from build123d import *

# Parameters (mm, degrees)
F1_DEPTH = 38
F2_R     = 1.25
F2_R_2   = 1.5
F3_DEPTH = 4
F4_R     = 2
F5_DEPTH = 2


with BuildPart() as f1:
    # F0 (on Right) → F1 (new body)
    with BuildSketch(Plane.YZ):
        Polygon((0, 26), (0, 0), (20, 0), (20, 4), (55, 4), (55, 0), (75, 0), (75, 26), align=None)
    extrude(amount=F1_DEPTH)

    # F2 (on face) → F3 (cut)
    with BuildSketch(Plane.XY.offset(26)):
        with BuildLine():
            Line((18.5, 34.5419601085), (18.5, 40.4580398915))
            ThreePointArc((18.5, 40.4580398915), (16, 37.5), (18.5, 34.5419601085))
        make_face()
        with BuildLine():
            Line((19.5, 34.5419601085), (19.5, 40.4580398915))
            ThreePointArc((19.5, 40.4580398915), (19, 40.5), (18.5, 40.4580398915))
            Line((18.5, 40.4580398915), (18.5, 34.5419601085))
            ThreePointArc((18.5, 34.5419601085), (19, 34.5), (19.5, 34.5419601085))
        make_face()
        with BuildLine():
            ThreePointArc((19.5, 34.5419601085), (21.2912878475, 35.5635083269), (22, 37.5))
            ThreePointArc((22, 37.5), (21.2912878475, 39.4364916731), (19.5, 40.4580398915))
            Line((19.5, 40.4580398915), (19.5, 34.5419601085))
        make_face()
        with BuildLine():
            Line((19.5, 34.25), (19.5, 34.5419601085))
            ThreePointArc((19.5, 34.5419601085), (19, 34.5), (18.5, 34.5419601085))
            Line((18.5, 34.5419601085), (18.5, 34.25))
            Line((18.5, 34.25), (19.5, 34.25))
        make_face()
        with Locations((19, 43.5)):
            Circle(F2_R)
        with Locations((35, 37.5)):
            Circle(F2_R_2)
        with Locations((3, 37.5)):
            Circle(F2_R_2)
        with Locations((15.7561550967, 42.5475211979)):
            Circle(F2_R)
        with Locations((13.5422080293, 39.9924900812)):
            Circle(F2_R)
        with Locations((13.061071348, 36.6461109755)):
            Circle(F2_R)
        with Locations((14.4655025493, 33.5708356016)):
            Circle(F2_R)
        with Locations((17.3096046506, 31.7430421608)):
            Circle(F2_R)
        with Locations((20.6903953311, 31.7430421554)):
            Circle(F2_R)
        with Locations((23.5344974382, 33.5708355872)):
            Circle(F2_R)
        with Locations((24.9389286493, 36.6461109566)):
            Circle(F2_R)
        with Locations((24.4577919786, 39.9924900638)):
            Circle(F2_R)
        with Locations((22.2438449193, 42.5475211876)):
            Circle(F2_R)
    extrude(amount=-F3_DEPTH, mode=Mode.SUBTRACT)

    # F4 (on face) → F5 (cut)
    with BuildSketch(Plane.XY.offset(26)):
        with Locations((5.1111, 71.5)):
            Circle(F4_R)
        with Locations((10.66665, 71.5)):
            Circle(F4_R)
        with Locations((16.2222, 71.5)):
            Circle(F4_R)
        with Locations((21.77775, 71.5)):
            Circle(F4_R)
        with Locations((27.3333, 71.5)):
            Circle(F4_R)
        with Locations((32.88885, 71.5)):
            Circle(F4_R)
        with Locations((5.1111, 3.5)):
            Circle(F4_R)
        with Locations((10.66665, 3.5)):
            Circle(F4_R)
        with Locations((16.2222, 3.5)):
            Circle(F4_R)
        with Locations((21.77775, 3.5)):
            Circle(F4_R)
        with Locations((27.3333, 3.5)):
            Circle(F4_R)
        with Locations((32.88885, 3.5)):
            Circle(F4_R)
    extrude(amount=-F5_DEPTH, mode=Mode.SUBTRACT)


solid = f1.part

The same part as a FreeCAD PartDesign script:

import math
import FreeCAD as App
import Part
import Sketcher
from FreeCAD import Vector

doc = App.newDocument("Part")
body = doc.addObject("PartDesign::Body", "Body")

# Sketch on YZ plane
sketch1 = body.newObject("Sketcher::SketchObject", "Sketch")
sketch1.AttachmentSupport = (doc.getObject("YZ_Plane"), [""])
sketch1.MapMode = "FlatFace"
sketch1.addGeometry(Part.LineSegment(Vector(0, 26, 0), Vector(0, 0, 0)), False)
sketch1.addGeometry(Part.LineSegment(Vector(0, 0, 0), Vector(20, 0, 0)), False)
sketch1.addGeometry(Part.LineSegment(Vector(20, 0, 0), Vector(20, 4, 0)), False)
sketch1.addGeometry(Part.LineSegment(Vector(20, 4, 0), Vector(55, 4, 0)), False)
sketch1.addGeometry(Part.LineSegment(Vector(55, 4, 0), Vector(55, 0, 0)), False)
sketch1.addGeometry(Part.LineSegment(Vector(55, 0, 0), Vector(75, 0, 0)), False)
sketch1.addGeometry(Part.LineSegment(Vector(75, 0, 0), Vector(75, 26, 0)), False)
sketch1.addGeometry(Part.LineSegment(Vector(75, 26, 0), Vector(0, 26, 0)), False)
sketch1.addConstraint(Sketcher.Constraint("Coincident", 0, 2, 1, 1))
sketch1.addConstraint(Sketcher.Constraint("Coincident", 1, 2, 2, 1))
sketch1.addConstraint(Sketcher.Constraint("Coincident", 2, 2, 3, 1))
sketch1.addConstraint(Sketcher.Constraint("Coincident", 3, 2, 4, 1))
sketch1.addConstraint(Sketcher.Constraint("Coincident", 4, 2, 5, 1))
sketch1.addConstraint(Sketcher.Constraint("Coincident", 5, 2, 6, 1))
sketch1.addConstraint(Sketcher.Constraint("Coincident", 6, 2, 7, 1))
sketch1.addConstraint(Sketcher.Constraint("Coincident", 7, 2, 0, 1))
sketch1.addConstraint(Sketcher.Constraint("Vertical", 0))
sketch1.addConstraint(Sketcher.Constraint("Horizontal", 1))
sketch1.addConstraint(Sketcher.Constraint("Vertical", 2))
sketch1.addConstraint(Sketcher.Constraint("Horizontal", 3))
sketch1.addConstraint(Sketcher.Constraint("Vertical", 4))
sketch1.addConstraint(Sketcher.Constraint("Horizontal", 5))
sketch1.addConstraint(Sketcher.Constraint("Vertical", 6))
sketch1.addConstraint(Sketcher.Constraint("Horizontal", 7))
sketch1.addConstraint(Sketcher.Constraint("Coincident", 0, 2, -1, 1))
sketch1.addConstraint(Sketcher.Constraint("PointOnObject", 4, 2, -1))
sketch1.addConstraint(Sketcher.Constraint("Equal", 1, 5))
sketch1.addConstraint(Sketcher.Constraint("DistanceX", 1, 1, 1, 2, 20.0))
sketch1.addConstraint(Sketcher.Constraint("DistanceX", 3, 1, 3, 2, 35.0))
sketch1.addConstraint(Sketcher.Constraint("DistanceY", 0, 2, 0, 1, 26.0))
sketch1.addConstraint(Sketcher.Constraint("DistanceY", 2, 1, 2, 2, 4.0))
pad1 = body.newObject("PartDesign::Pad", "Pad")
pad1.Profile = sketch1
pad1.Length = 38

# Sketch on XY plane
sketch2 = body.newObject("Sketcher::SketchObject", "Sketch001")
sketch2.AttachmentSupport = (doc.getObject("XY_Plane"), [""])
sketch2.MapMode = "FlatFace"
sketch2.AttachmentOffset = App.Placement(Vector(0, 0, 26), App.Rotation())
sketch2.addGeometry(Part.ArcOfCircle(Part.Circle(Vector(19, 37.5, 0), Vector(0, 0, 1), 3), math.radians(100), math.radians(260)), False)
sketch2.addGeometry(Part.LineSegment(Vector(18.5, 34.54, 0), Vector(18.5, 34.25, 0)), False)
sketch2.addGeometry(Part.LineSegment(Vector(18.5, 34.25, 0), Vector(19.5, 34.25, 0)), False)
sketch2.addGeometry(Part.LineSegment(Vector(19.5, 34.25, 0), Vector(19.5, 34.54, 0)), False)
sketch2.addGeometry(Part.ArcOfCircle(Part.Circle(Vector(19, 37.5, 0), Vector(0, 0, 1), 3), math.radians(-80), math.radians(0)), False)
sketch2.addGeometry(Part.ArcOfCircle(Part.Circle(Vector(19, 37.5, 0), Vector(0, 0, 1), 3), math.radians(0), math.radians(80)), False)
sketch2.addGeometry(Part.ArcOfCircle(Part.Circle(Vector(19, 37.5, 0), Vector(0, 0, 1), 3), math.radians(80.41), math.radians(99.59)), False)
sketch2.addGeometry(Part.Circle(Vector(19, 43.5, 0), Vector(0, 0, 1), 1.25), False)
sketch2.addGeometry(Part.Circle(Vector(35, 37.5, 0), Vector(0, 0, 1), 1.5), False)
sketch2.addGeometry(Part.Circle(Vector(3, 37.5, 0), Vector(0, 0, 1), 1.5), False)
sketch2.addGeometry(Part.Circle(Vector(15.76, 42.55, 0), Vector(0, 0, 1), 1.25), False)
sketch2.addGeometry(Part.Circle(Vector(13.54, 39.99, 0), Vector(0, 0, 1), 1.25), False)
sketch2.addGeometry(Part.Circle(Vector(13.06, 36.65, 0), Vector(0, 0, 1), 1.25), False)
sketch2.addGeometry(Part.Circle(Vector(14.47, 33.57, 0), Vector(0, 0, 1), 1.25), False)
sketch2.addGeometry(Part.Circle(Vector(17.31, 31.74, 0), Vector(0, 0, 1), 1.25), False)
sketch2.addGeometry(Part.Circle(Vector(20.69, 31.74, 0), Vector(0, 0, 1), 1.25), False)
sketch2.addGeometry(Part.Circle(Vector(23.53, 33.57, 0), Vector(0, 0, 1), 1.25), False)
sketch2.addGeometry(Part.Circle(Vector(24.94, 36.65, 0), Vector(0, 0, 1), 1.25), False)
sketch2.addGeometry(Part.Circle(Vector(24.46, 39.99, 0), Vector(0, 0, 1), 1.25), False)
sketch2.addGeometry(Part.Circle(Vector(22.24, 42.55, 0), Vector(0, 0, 1), 1.25), False)
sketch2.addConstraint(Sketcher.Constraint("Coincident", 0, 2, 1, 1))
sketch2.addConstraint(Sketcher.Constraint("Coincident", 1, 2, 2, 1))
sketch2.addConstraint(Sketcher.Constraint("Coincident", 2, 2, 3, 1))
sketch2.addConstraint(Sketcher.Constraint("Coincident", 3, 2, 4, 1))
sketch2.addConstraint(Sketcher.Constraint("Tangent", 4, 2, 5, 1))
sketch2.addConstraint(Sketcher.Constraint("Tangent", 5, 2, 6, 1))
sketch2.addConstraint(Sketcher.Constraint("Tangent", 6, 2, 0, 1))
sketch2.addConstraint(Sketcher.Constraint("Vertical", 1))
sketch2.addConstraint(Sketcher.Constraint("Horizontal", 2))
sketch2.addConstraint(Sketcher.Constraint("Vertical", 3))
sketch2.addConstraint(Sketcher.Constraint("Coincident", 4, 3, 0, 3))
sketch2.addConstraint(Sketcher.Constraint("Equal", 0, 4))
sketch2.addConstraint(Sketcher.Constraint("Equal", 8, 9))
sketch2.addConstraint(Sketcher.Constraint("Equal", 7, 10))
sketch2.addConstraint(Sketcher.Constraint("Equal", 10, 11))
sketch2.addConstraint(Sketcher.Constraint("Equal", 11, 12))
sketch2.addConstraint(Sketcher.Constraint("Equal", 12, 13))
sketch2.addConstraint(Sketcher.Constraint("Equal", 13, 14))
sketch2.addConstraint(Sketcher.Constraint("Equal", 14, 15))
sketch2.addConstraint(Sketcher.Constraint("Equal", 15, 16))
sketch2.addConstraint(Sketcher.Constraint("Equal", 16, 17))
sketch2.addConstraint(Sketcher.Constraint("Equal", 17, 18))
sketch2.addConstraint(Sketcher.Constraint("Equal", 18, 19))
sketch2.addConstraint(Sketcher.Constraint("Horizontal", 6, 3, 8, 3))
sketch2.addConstraint(Sketcher.Constraint("Horizontal", 8, 3, 9, 3))
sketch2.addConstraint(Sketcher.Constraint("Horizontal", 14, 3, 15, 3))
sketch2.addConstraint(Sketcher.Constraint("Horizontal", 13, 3, 16, 3))
sketch2.addConstraint(Sketcher.Constraint("Horizontal", 12, 3, 17, 3))
sketch2.addConstraint(Sketcher.Constraint("Horizontal", 11, 3, 18, 3))
sketch2.addConstraint(Sketcher.Constraint("Horizontal", 10, 3, 19, 3))
sketch2.addConstraint(Sketcher.Constraint("Horizontal", 0, 2, 3, 2))
sketch2.addConstraint(Sketcher.Constraint("Horizontal", 9, 3, 4, 2))
sketch2.addConstraint(Sketcher.Constraint("Horizontal", 5, 2, 6, 2))
sketch2.addConstraint(Sketcher.Constraint("Vertical", 6, 3, 7, 3))
sketch2.addConstraint(Sketcher.Constraint("Vertical", 3, 2, 5, 2))
sketch2.addConstraint(Sketcher.Constraint("Diameter", 8, 3.0))
sketch2.addConstraint(Sketcher.Constraint("Radius", 0, 3.0))
sketch2.addConstraint(Sketcher.Constraint("Diameter", 7, 2.5))
sketch2.addConstraint(Sketcher.Constraint("DistanceX", 2, 1, 2, 2, 1.0))
sketch2.addConstraint(Sketcher.Constraint("DistanceX", -1, 1, 0, 3, 19.0))
sketch2.addConstraint(Sketcher.Constraint("DistanceX", -1, 1, 8, 3, 35.0))
sketch2.addConstraint(Sketcher.Constraint("DistanceX", -1, 1, 9, 3, 3.0))
sketch2.addConstraint(Sketcher.Constraint("DistanceY", 6, 3, 7, 3, 6.0))
sketch2.addConstraint(Sketcher.Constraint("DistanceY", -1, 1, 0, 3, 37.5))
sketch2.addConstraint(Sketcher.Constraint("DistanceY", -1, 1, 1, 2, 34.25))
sketch2.addConstraint(Sketcher.Constraint("DistanceY", -1, 1, 10, 3, 42.547521))
sketch2.addConstraint(Sketcher.Constraint("DistanceX", -1, 1, 11, 3, 13.542208))
sketch2.addConstraint(Sketcher.Constraint("DistanceY", -1, 1, 11, 3, 39.99249))
sketch2.addConstraint(Sketcher.Constraint("DistanceX", -1, 1, 12, 3, 13.061071))
sketch2.addConstraint(Sketcher.Constraint("DistanceY", -1, 1, 12, 3, 36.646111))
sketch2.addConstraint(Sketcher.Constraint("DistanceX", -1, 1, 17, 3, 24.938929))
sketch2.addConstraint(Sketcher.Constraint("DistanceX", -1, 1, 18, 3, 24.457792))
sketch2.addConstraint(Sketcher.Constraint("DistanceX", 12, 3, 13, 3, 1.404431))
sketch2.addConstraint(Sketcher.Constraint("DistanceX", 14, 3, 15, 3, 3.380791))
sketch2.addConstraint(Sketcher.Constraint("DistanceX", 16, 3, 17, 3, 1.404431))
sketch2.addConstraint(Sketcher.Constraint("DistanceX", -1, 1, 10, 3, 15.756155))
sketch2.addConstraint(Sketcher.Constraint("DistanceY", -1, 1, 13, 3, 33.570836))
sketch2.addConstraint(Sketcher.Constraint("DistanceX", -1, 1, 14, 3, 17.309605))
sketch2.addConstraint(Sketcher.Constraint("DistanceY", -1, 1, 14, 3, 31.743042))
sketch2.addConstraint(Sketcher.Constraint("DistanceX", -1, 1, 19, 3, 22.243845))
pocket1 = body.newObject("PartDesign::Pocket", "Pocket")
pocket1.Profile = sketch2
pocket1.Length = 4

# Sketch on XY plane
sketch3 = body.newObject("Sketcher::SketchObject", "Sketch002")
sketch3.AttachmentSupport = (doc.getObject("XY_Plane"), [""])
sketch3.MapMode = "FlatFace"
sketch3.AttachmentOffset = App.Placement(Vector(0, 0, 26), App.Rotation())
sketch3.addGeometry(Part.Circle(Vector(5.1, 71.5, 0), Vector(0, 0, 1), 2), False)
sketch3.addGeometry(Part.Circle(Vector(10.7, 71.5, 0), Vector(0, 0, 1), 2), False)
sketch3.addGeometry(Part.Circle(Vector(16.2, 71.5, 0), Vector(0, 0, 1), 2), False)
sketch3.addGeometry(Part.Circle(Vector(21.8, 71.5, 0), Vector(0, 0, 1), 2), False)
sketch3.addGeometry(Part.Circle(Vector(27.3, 71.5, 0), Vector(0, 0, 1), 2), False)
sketch3.addGeometry(Part.Circle(Vector(32.9, 71.5, 0), Vector(0, 0, 1), 2), False)
sketch3.addGeometry(Part.Circle(Vector(5.1, 3.5, 0), Vector(0, 0, 1), 2), False)
sketch3.addGeometry(Part.Circle(Vector(10.7, 3.5, 0), Vector(0, 0, 1), 2), False)
sketch3.addGeometry(Part.Circle(Vector(16.2, 3.5, 0), Vector(0, 0, 1), 2), False)
sketch3.addGeometry(Part.Circle(Vector(21.8, 3.5, 0), Vector(0, 0, 1), 2), False)
sketch3.addGeometry(Part.Circle(Vector(27.3, 3.5, 0), Vector(0, 0, 1), 2), False)
sketch3.addGeometry(Part.Circle(Vector(32.9, 3.5, 0), Vector(0, 0, 1), 2), False)
sketch3.addConstraint(Sketcher.Constraint("Equal", 0, 1))
sketch3.addConstraint(Sketcher.Constraint("Equal", 1, 2))
sketch3.addConstraint(Sketcher.Constraint("Equal", 2, 3))
sketch3.addConstraint(Sketcher.Constraint("Equal", 3, 4))
sketch3.addConstraint(Sketcher.Constraint("Equal", 4, 5))
sketch3.addConstraint(Sketcher.Constraint("Equal", 5, 6))
sketch3.addConstraint(Sketcher.Constraint("Equal", 6, 7))
sketch3.addConstraint(Sketcher.Constraint("Equal", 7, 8))
sketch3.addConstraint(Sketcher.Constraint("Equal", 8, 9))
sketch3.addConstraint(Sketcher.Constraint("Equal", 9, 10))
sketch3.addConstraint(Sketcher.Constraint("Equal", 10, 11))
sketch3.addConstraint(Sketcher.Constraint("Horizontal", 0, 3, 1, 3))
sketch3.addConstraint(Sketcher.Constraint("Horizontal", 1, 3, 2, 3))
sketch3.addConstraint(Sketcher.Constraint("Horizontal", 2, 3, 3, 3))
sketch3.addConstraint(Sketcher.Constraint("Horizontal", 3, 3, 4, 3))
sketch3.addConstraint(Sketcher.Constraint("Horizontal", 4, 3, 5, 3))
sketch3.addConstraint(Sketcher.Constraint("Horizontal", 6, 3, 7, 3))
sketch3.addConstraint(Sketcher.Constraint("Horizontal", 7, 3, 8, 3))
sketch3.addConstraint(Sketcher.Constraint("Horizontal", 8, 3, 9, 3))
sketch3.addConstraint(Sketcher.Constraint("Horizontal", 9, 3, 10, 3))
sketch3.addConstraint(Sketcher.Constraint("Horizontal", 10, 3, 11, 3))
sketch3.addConstraint(Sketcher.Constraint("Vertical", 0, 3, 6, 3))
sketch3.addConstraint(Sketcher.Constraint("Vertical", 1, 3, 7, 3))
sketch3.addConstraint(Sketcher.Constraint("Vertical", 2, 3, 8, 3))
sketch3.addConstraint(Sketcher.Constraint("Vertical", 3, 3, 9, 3))
sketch3.addConstraint(Sketcher.Constraint("Vertical", 4, 3, 10, 3))
sketch3.addConstraint(Sketcher.Constraint("Vertical", 5, 3, 11, 3))
sketch3.addConstraint(Sketcher.Constraint("Diameter", 0, 4.0))
sketch3.addConstraint(Sketcher.Constraint("DistanceY", 6, 3, 0, 3, 68.0))
sketch3.addConstraint(Sketcher.Constraint("DistanceY", -1, 1, 0, 3, 71.5))
sketch3.addConstraint(Sketcher.Constraint("DistanceX", -1, 1, 0, 3, 5.1111))
sketch3.addConstraint(Sketcher.Constraint("DistanceX", -1, 1, 2, 3, 16.2222))
sketch3.addConstraint(Sketcher.Constraint("DistanceX", -1, 1, 4, 3, 27.3333))
sketch3.addConstraint(Sketcher.Constraint("DistanceX", 1, 3, 3, 3, 11.1111))
sketch3.addConstraint(Sketcher.Constraint("DistanceX", 3, 3, 5, 3, 11.1111))
sketch3.addConstraint(Sketcher.Constraint("DistanceX", -1, 1, 1, 3, 10.66665))
pocket2 = body.newObject("PartDesign::Pocket", "Pocket001")
pocket2.Profile = sketch3
pocket2.Length = 2

doc.recompute()
